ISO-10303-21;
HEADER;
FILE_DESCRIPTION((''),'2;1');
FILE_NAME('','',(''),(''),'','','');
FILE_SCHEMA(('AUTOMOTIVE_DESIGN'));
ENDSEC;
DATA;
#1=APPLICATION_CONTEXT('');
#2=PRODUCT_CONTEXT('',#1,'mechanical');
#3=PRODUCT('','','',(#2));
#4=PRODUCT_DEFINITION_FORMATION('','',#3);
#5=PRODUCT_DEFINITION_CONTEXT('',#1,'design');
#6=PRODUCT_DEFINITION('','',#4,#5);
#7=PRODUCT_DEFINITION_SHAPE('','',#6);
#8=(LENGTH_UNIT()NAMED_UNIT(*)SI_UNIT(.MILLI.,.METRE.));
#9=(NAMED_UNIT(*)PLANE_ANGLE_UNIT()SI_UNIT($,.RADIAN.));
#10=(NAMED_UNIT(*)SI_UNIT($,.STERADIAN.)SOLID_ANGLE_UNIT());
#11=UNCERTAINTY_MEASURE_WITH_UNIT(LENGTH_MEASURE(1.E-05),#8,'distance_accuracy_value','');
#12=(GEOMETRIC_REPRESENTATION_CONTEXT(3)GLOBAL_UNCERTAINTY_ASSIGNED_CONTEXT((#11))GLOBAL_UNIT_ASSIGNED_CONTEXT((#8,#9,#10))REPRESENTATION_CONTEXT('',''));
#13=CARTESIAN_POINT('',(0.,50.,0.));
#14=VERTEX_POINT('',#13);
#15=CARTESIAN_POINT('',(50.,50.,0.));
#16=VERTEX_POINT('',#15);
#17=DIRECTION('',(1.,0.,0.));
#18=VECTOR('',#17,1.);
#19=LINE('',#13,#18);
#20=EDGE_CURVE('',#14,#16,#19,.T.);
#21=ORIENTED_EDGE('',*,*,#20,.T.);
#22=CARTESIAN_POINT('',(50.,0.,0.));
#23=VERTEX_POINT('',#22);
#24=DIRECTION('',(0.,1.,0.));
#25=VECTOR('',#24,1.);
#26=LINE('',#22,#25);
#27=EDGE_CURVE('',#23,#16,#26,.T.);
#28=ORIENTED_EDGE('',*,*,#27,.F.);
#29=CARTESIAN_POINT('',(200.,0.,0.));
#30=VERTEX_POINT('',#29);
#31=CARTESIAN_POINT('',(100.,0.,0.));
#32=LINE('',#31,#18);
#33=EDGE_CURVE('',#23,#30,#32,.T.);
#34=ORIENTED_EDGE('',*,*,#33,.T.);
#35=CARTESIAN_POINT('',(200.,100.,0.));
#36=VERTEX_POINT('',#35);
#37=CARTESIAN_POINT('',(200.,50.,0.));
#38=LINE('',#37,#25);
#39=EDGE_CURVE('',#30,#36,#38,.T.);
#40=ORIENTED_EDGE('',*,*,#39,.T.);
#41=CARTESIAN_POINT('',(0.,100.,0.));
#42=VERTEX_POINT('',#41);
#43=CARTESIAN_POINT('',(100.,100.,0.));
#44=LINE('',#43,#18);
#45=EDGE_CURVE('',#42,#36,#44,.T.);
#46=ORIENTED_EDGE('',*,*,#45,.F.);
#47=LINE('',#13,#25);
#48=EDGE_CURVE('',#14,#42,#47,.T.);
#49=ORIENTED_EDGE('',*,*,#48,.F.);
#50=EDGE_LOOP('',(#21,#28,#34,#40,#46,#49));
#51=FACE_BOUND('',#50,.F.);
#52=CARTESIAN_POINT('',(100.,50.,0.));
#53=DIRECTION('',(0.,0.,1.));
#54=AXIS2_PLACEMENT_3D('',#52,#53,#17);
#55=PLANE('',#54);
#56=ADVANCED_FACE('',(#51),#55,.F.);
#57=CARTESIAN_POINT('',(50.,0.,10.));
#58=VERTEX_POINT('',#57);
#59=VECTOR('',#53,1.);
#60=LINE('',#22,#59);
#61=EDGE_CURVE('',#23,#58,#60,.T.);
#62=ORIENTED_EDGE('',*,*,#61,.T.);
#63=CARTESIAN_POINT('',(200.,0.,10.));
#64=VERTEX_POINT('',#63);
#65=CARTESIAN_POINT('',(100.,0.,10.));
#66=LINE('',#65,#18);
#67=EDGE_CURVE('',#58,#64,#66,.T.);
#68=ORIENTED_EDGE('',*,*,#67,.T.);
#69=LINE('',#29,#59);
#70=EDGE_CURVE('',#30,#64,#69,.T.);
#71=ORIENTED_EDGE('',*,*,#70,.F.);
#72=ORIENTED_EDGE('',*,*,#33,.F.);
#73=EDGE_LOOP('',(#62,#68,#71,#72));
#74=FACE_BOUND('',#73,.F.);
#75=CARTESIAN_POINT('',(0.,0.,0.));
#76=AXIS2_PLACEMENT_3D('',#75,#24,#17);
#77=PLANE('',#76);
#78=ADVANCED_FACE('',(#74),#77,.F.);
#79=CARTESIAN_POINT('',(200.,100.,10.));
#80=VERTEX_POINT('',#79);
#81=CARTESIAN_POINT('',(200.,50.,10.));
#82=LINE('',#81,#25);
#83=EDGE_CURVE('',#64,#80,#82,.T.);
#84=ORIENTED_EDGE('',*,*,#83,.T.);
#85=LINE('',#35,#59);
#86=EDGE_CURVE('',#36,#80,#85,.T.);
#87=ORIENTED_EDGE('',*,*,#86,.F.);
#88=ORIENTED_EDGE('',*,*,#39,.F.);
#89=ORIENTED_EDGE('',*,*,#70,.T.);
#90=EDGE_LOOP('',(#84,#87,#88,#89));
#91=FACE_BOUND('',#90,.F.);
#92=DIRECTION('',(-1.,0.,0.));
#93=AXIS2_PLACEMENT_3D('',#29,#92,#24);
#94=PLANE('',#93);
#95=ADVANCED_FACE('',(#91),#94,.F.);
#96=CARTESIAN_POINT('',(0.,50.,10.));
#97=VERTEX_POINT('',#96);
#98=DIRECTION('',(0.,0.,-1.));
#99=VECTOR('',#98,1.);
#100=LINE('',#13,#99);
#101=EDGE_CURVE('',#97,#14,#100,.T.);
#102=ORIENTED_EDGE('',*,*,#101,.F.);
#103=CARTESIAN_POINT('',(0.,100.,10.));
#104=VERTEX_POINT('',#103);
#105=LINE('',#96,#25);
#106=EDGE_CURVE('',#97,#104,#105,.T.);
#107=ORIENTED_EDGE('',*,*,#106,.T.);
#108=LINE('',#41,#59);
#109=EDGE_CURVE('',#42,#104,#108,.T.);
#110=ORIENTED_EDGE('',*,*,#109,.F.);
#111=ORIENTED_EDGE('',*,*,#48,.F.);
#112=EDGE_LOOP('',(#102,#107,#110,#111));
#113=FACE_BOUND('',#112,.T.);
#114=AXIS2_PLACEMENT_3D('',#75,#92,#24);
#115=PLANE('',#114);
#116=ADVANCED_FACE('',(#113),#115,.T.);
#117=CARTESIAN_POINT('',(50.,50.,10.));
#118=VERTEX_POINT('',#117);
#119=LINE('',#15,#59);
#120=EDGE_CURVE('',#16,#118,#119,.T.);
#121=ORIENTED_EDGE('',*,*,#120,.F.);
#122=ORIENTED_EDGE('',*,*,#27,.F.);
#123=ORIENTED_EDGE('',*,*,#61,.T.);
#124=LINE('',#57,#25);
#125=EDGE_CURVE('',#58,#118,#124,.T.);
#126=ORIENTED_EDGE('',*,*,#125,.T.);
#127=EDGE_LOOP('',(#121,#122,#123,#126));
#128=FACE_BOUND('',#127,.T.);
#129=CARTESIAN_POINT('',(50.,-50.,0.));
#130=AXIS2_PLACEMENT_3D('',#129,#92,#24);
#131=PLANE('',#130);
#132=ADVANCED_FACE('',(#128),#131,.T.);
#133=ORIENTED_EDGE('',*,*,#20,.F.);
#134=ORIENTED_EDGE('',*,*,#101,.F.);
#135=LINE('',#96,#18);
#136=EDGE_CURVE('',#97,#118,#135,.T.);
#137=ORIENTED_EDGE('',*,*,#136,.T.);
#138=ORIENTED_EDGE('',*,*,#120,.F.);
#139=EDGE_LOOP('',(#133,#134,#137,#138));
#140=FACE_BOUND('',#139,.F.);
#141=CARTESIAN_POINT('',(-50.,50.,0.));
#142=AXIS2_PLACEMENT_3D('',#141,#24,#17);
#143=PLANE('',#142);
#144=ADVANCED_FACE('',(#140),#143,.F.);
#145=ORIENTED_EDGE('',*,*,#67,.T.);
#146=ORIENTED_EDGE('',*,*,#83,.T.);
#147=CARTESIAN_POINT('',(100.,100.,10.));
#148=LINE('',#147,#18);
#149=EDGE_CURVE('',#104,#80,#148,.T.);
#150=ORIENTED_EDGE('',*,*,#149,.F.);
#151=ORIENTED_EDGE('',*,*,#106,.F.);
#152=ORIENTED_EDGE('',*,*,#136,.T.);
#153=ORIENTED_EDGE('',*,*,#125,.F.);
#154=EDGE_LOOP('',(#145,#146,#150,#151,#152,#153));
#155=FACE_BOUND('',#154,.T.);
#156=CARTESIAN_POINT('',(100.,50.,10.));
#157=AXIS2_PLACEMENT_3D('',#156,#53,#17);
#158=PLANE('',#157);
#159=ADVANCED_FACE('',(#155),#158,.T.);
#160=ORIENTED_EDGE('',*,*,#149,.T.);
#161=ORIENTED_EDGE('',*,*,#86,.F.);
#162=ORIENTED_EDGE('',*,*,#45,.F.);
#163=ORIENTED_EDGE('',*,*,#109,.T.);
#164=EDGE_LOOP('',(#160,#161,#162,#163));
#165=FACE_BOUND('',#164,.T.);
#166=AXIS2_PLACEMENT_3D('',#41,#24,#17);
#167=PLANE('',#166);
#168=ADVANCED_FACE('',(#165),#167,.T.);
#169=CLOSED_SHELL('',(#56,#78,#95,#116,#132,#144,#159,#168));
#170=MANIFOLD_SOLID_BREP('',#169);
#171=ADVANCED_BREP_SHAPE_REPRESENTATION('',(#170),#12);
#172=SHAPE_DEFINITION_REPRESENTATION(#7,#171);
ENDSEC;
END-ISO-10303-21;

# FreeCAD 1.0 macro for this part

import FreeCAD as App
import Part
import Sketcher

V = App.Vector


def add_polygon(sketch, points):
    """Adds a closed chain of lines whose ends are joined by coincident constraints."""
    first, n = sketch.GeometryCount, len(points)
    for a, b in zip(points, points[1:] + points[:1]):
        sketch.addGeometry(Part.LineSegment(App.Vector(*a, 0), App.Vector(*b, 0)), False)
    for i in range(n):
        sketch.addConstraint(Sketcher.Constraint("Coincident", first + i, 2, first + (i + 1) % n, 1))

doc = App.newDocument("Part")
body = doc.addObject("PartDesign::Body", "Body")

# Sketch on XY plane
sketch1 = body.newObject("Sketcher::SketchObject", "Sketch")
sketch1.AttachmentSupport = (doc.getObject("XY_Plane"), [""])
sketch1.MapMode = "FlatFace"
add_polygon(sketch1, [(-50, 50), (-50, -50), (50, -50), (50, 50)])  # lines 0-3
sketch1.addConstraint(Sketcher.Constraint("Vertical", 0))
sketch1.addConstraint(Sketcher.Constraint("Horizontal", 1))
sketch1.addConstraint(Sketcher.Constraint("Vertical", 2))
sketch1.addConstraint(Sketcher.Constraint("Horizontal", 3))
sketch1.addConstraint(Sketcher.Constraint("Symmetric", 0, 2, 2, 2, -1, 1))
sketch1.addConstraint(Sketcher.Constraint("Equal", 3, 0))
sketch1.addConstraint(Sketcher.Constraint("DistanceX", 1, 1, 1, 2, 100.0))
pad1 = body.newObject("PartDesign::Pad", "Pad")
pad1.Profile = sketch1
pad1.Length = 10
body2 = doc.addObject("PartDesign::Body", "Body001")

# Sketch on XY plane
sketch2 = body2.newObject("Sketcher::SketchObject", "Sketch001")
sketch2.AttachmentSupport = (doc.getObject("XY_Plane001"), [""])
sketch2.MapMode = "FlatFace"
add_polygon(sketch2, [(0, 100), (0, 0), (200, 0), (200, 100)])  # lines 0-3
sketch2.addConstraint(Sketcher.Constraint("Vertical", 0))
sketch2.addConstraint(Sketcher.Constraint("Horizontal", 1))
sketch2.addConstraint(Sketcher.Constraint("Vertical", 2))
sketch2.addConstraint(Sketcher.Constraint("Horizontal", 3))
sketch2.addConstraint(Sketcher.Constraint("Coincident", 0, 2, -1, 1))
sketch2.addConstraint(Sketcher.Constraint("DistanceX", 1, 1, 1, 2, 200.0))
sketch2.addConstraint(Sketcher.Constraint("DistanceY", 0, 2, 0, 1, 100.0))
pad2 = body2.newObject("PartDesign::Pad", "Pad001")
pad2.Profile = sketch2
pad2.Length = 10
doc.recompute()

boolean = body2.newObject("PartDesign::Boolean", "Boolean")
boolean.Type = "Cut"
boolean.addObjects([body])

doc.recompute()
